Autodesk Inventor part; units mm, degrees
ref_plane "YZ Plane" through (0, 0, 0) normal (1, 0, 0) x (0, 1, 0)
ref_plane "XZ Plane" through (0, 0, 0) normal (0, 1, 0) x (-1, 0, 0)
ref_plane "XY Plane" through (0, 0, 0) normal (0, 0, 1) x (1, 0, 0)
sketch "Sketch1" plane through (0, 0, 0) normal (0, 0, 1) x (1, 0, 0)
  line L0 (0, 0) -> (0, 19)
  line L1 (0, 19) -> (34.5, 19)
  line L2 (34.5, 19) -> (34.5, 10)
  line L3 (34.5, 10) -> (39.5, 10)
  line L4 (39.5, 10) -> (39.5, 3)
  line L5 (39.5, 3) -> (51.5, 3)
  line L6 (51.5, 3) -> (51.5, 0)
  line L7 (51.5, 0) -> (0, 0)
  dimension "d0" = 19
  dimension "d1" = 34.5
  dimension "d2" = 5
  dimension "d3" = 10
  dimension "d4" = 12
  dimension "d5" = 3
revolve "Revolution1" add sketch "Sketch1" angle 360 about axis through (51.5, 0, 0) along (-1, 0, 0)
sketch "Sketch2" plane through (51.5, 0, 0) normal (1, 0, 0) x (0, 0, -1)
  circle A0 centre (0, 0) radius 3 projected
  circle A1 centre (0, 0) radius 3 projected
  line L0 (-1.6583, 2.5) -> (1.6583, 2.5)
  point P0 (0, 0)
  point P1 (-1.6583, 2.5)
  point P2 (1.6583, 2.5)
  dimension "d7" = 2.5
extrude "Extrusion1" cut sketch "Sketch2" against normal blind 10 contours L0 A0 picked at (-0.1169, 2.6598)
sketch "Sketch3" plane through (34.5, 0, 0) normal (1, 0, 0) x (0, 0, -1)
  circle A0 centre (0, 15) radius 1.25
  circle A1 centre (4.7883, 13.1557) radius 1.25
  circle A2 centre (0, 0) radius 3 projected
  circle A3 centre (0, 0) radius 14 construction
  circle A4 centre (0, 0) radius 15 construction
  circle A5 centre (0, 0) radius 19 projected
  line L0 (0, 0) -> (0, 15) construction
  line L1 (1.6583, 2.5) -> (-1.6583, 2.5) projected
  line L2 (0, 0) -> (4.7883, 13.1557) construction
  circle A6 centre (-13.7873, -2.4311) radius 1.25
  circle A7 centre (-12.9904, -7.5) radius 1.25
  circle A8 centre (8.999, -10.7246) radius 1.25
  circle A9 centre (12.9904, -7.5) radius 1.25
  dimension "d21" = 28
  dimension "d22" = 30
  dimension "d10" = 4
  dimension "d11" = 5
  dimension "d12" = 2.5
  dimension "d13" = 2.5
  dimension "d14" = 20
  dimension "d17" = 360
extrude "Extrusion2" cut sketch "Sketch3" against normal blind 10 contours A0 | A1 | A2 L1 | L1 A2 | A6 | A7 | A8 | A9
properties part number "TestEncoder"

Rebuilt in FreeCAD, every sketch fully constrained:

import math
import FreeCAD as App
import Part
import Sketcher

V = App.Vector
Q = App.Units.Quantity

doc = App.newDocument("Part")
body = doc.addObject("PartDesign::Body", "Body")

# Sketch on XY plane
sketch1 = body.newObject("Sketcher::SketchObject", "Sketch")
sketch1.AttachmentSupport = (doc.getObject("XY_Plane"), [""])
sketch1.MapMode = "FlatFace"
sketch1.addGeometry(Part.LineSegment(V(0, 19, 0), V(0, 0, 0)), False)
sketch1.addGeometry(Part.LineSegment(V(0, 0, 0), V(51.5, 0, 0)), False)
sketch1.addGeometry(Part.LineSegment(V(51.5, 0, 0), V(51.5, 3, 0)), False)
sketch1.addGeometry(Part.LineSegment(V(51.5, 3, 0), V(39.5, 3, 0)), False)
sketch1.addGeometry(Part.LineSegment(V(39.5, 3, 0), V(39.5, 10, 0)), False)
sketch1.addGeometry(Part.LineSegment(V(39.5, 10, 0), V(34.5, 10, 0)), False)
sketch1.addGeometry(Part.LineSegment(V(34.5, 10, 0), V(34.5, 19, 0)), False)
sketch1.addGeometry(Part.LineSegment(V(34.5, 19, 0), V(0, 19, 0)), False)
sketch1.addConstraint(Sketcher.Constraint("Coincident", 0, 2, 1, 1))
sketch1.addConstraint(Sketcher.Constraint("Coincident", 1, 2, 2, 1))
sketch1.addConstraint(Sketcher.Constraint("Coincident", 2, 2, 3, 1))
sketch1.addConstraint(Sketcher.Constraint("Coincident", 3, 2, 4, 1))
sketch1.addConstraint(Sketcher.Constraint("Coincident", 4, 2, 5, 1))
sketch1.addConstraint(Sketcher.Constraint("Coincident", 5, 2, 6, 1))
sketch1.addConstraint(Sketcher.Constraint("Coincident", 6, 2, 7, 1))
sketch1.addConstraint(Sketcher.Constraint("Coincident", 7, 2, 0, 1))
sketch1.addConstraint(Sketcher.Constraint("Vertical", 0))
sketch1.addConstraint(Sketcher.Constraint("Horizontal", 1))
sketch1.addConstraint(Sketcher.Constraint("Vertical", 2))
sketch1.addConstraint(Sketcher.Constraint("Horizontal", 3))
sketch1.addConstraint(Sketcher.Constraint("Vertical", 4))
sketch1.addConstraint(Sketcher.Constraint("Horizontal", 5))
sketch1.addConstraint(Sketcher.Constraint("Vertical", 6))
sketch1.addConstraint(Sketcher.Constraint("Horizontal", 7))
sketch1.addConstraint(Sketcher.Constraint("Coincident", 0, 2, -1, 1))
sketch1.addConstraint(Sketcher.Constraint("DistanceX", 3, 2, 3, 1, Q("12 mm")))
sketch1.addConstraint(Sketcher.Constraint("DistanceX", 5, 2, 5, 1, Q("5 mm")))
sketch1.addConstraint(Sketcher.Constraint("DistanceY", 0, 2, 0, 1, Q("19 mm")))
sketch1.addConstraint(Sketcher.Constraint("DistanceY", 2, 1, 2, 2, Q("3 mm")))
sketch1.addConstraint(Sketcher.Constraint("DistanceX", 7, 2, 7, 1, Q("34.5 mm")))
sketch1.addConstraint(Sketcher.Constraint("DistanceY", -1, 1, 4, 2, Q("10 mm")))
revolution = body.newObject("PartDesign::Revolution", "Revolution")
revolution.Profile = sketch1
revolution.ReferenceAxis = (sketch1, ["H_Axis"])
revolution.Angle = 360

# Sketch on YZ plane
sketch2 = body.newObject("Sketcher::SketchObject", "Sketch001")
sketch2.AttachmentSupport = (doc.getObject("YZ_Plane"), [""])
sketch2.MapMode = "FlatFace"
sketch2.AttachmentOffset = App.Placement(V(0, 0, 51.5), App.Rotation())
sketch2.addGeometry(Part.LineSegment(V(2.5, 1.6583, 0), V(2.5, -1.6583, 0)), False)
sketch2.addGeometry(Part.ArcOfCircle(Part.Circle(V(0, 0, 0), V(0, 0, 1), 3), math.radians(-33.557112), math.radians(33.557112)), False)
sketch2.addConstraint(Sketcher.Constraint("Coincident", 0, 1, 1, 2))
sketch2.addConstraint(Sketcher.Constraint("Coincident", 1, 1, 0, 2))
sketch2.addConstraint(Sketcher.Constraint("Vertical", 0))
sketch2.addConstraint(Sketcher.Constraint("Coincident", 1, 3, -1, 1))
sketch2.addConstraint(Sketcher.Constraint("Radius", 1, Q("3 mm")))
sketch2.addConstraint(Sketcher.Constraint("DistanceX", -1, 1, 0, 1, Q("2.5 mm")))
pocket1 = body.newObject("PartDesign::Pocket", "Pocket")
pocket1.Profile = sketch2
pocket1.Length = 10

# Sketch on YZ plane
sketch3 = body.newObject("Sketcher::SketchObject", "Sketch002")
sketch3.AttachmentSupport = (doc.getObject("YZ_Plane"), [""])
sketch3.MapMode = "FlatFace"
sketch3.AttachmentOffset = App.Placement(V(0, 0, 34.5), App.Rotation())
sketch3.addGeometry(Part.Circle(V(15, 0, 0), V(0, 0, 1), 1.25), False)
sketch3.addGeometry(Part.Circle(V(13.1557, -4.7883, 0), V(0, 0, 1), 1.25), False)
sketch3.addGeometry(Part.Circle(V(0, 0, 0), V(0, 0, 1), 3), False)
sketch3.addGeometry(Part.Circle(V(-2.4311, 13.7873, 0), V(0, 0, 1), 1.25), False)
sketch3.addGeometry(Part.Circle(V(-7.5, 12.9904, 0), V(0, 0, 1), 1.25), False)
sketch3.addGeometry(Part.Circle(V(-10.7246, -8.999, 0), V(0, 0, 1), 1.25), False)
sketch3.addGeometry(Part.Circle(V(-7.5, -12.9904, 0), V(0, 0, 1), 1.25), False)
sketch3.addConstraint(Sketcher.Constraint("Coincident", 2, 3, -1, 1))
sketch3.addConstraint(Sketcher.Constraint("Equal", 0, 1))
sketch3.addConstraint(Sketcher.Constraint("Equal", 1, 3))
sketch3.addConstraint(Sketcher.Constraint("Equal", 3, 4))
sketch3.addConstraint(Sketcher.Constraint("Equal", 4, 5))
sketch3.addConstraint(Sketcher.Constraint("Equal", 5, 6))
sketch3.addConstraint(Sketcher.Constraint("Symmetric", 4, 3, 6, 3, -1))
sketch3.addConstraint(Sketcher.Constraint("PointOnObject", 0, 3, -1))
sketch3.addConstraint(Sketcher.Constraint("Diameter", 0, Q("2.5 mm")))
sketch3.addConstraint(Sketcher.Constraint("Diameter", 2, Q("6 mm")))
sketch3.addConstraint(Sketcher.Constraint("DistanceX", -1, 1, 0, 3, Q("15 mm")))
sketch3.addConstraint(Sketcher.Constraint("DistanceX", 4, 3, -1, 1, Q("7.5 mm")))
sketch3.addConstraint(Sketcher.Constraint("DistanceX", 3, 3, -1, 1, Q("2.431 mm")))
sketch3.addConstraint(Sketcher.Constraint("DistanceY", 5, 3, -1, 1, Q("8.999 mm")))
sketch3.addConstraint(Sketcher.Constraint("DistanceY", 4, 3, 3, 3, Q("0.797 mm")))
sketch3.addConstraint(Sketcher.Constraint("DistanceY", 6, 3, 1, 3, Q("8.202 mm")))
sketch3.addConstraint(Sketcher.Constraint("DistanceX", -1, 1, 1, 3, Q("13.1557 mm")))
sketch3.addConstraint(Sketcher.Constraint("DistanceY", 1, 3, -1, 1, Q("4.7883 mm")))
sketch3.addConstraint(Sketcher.Constraint("DistanceX", 5, 3, -1, 1, Q("10.7246 mm")))
pocket2 = body.newObject("PartDesign::Pocket", "Pocket001")
pocket2.Profile = sketch3
pocket2.Length = 10

doc.recompute()
